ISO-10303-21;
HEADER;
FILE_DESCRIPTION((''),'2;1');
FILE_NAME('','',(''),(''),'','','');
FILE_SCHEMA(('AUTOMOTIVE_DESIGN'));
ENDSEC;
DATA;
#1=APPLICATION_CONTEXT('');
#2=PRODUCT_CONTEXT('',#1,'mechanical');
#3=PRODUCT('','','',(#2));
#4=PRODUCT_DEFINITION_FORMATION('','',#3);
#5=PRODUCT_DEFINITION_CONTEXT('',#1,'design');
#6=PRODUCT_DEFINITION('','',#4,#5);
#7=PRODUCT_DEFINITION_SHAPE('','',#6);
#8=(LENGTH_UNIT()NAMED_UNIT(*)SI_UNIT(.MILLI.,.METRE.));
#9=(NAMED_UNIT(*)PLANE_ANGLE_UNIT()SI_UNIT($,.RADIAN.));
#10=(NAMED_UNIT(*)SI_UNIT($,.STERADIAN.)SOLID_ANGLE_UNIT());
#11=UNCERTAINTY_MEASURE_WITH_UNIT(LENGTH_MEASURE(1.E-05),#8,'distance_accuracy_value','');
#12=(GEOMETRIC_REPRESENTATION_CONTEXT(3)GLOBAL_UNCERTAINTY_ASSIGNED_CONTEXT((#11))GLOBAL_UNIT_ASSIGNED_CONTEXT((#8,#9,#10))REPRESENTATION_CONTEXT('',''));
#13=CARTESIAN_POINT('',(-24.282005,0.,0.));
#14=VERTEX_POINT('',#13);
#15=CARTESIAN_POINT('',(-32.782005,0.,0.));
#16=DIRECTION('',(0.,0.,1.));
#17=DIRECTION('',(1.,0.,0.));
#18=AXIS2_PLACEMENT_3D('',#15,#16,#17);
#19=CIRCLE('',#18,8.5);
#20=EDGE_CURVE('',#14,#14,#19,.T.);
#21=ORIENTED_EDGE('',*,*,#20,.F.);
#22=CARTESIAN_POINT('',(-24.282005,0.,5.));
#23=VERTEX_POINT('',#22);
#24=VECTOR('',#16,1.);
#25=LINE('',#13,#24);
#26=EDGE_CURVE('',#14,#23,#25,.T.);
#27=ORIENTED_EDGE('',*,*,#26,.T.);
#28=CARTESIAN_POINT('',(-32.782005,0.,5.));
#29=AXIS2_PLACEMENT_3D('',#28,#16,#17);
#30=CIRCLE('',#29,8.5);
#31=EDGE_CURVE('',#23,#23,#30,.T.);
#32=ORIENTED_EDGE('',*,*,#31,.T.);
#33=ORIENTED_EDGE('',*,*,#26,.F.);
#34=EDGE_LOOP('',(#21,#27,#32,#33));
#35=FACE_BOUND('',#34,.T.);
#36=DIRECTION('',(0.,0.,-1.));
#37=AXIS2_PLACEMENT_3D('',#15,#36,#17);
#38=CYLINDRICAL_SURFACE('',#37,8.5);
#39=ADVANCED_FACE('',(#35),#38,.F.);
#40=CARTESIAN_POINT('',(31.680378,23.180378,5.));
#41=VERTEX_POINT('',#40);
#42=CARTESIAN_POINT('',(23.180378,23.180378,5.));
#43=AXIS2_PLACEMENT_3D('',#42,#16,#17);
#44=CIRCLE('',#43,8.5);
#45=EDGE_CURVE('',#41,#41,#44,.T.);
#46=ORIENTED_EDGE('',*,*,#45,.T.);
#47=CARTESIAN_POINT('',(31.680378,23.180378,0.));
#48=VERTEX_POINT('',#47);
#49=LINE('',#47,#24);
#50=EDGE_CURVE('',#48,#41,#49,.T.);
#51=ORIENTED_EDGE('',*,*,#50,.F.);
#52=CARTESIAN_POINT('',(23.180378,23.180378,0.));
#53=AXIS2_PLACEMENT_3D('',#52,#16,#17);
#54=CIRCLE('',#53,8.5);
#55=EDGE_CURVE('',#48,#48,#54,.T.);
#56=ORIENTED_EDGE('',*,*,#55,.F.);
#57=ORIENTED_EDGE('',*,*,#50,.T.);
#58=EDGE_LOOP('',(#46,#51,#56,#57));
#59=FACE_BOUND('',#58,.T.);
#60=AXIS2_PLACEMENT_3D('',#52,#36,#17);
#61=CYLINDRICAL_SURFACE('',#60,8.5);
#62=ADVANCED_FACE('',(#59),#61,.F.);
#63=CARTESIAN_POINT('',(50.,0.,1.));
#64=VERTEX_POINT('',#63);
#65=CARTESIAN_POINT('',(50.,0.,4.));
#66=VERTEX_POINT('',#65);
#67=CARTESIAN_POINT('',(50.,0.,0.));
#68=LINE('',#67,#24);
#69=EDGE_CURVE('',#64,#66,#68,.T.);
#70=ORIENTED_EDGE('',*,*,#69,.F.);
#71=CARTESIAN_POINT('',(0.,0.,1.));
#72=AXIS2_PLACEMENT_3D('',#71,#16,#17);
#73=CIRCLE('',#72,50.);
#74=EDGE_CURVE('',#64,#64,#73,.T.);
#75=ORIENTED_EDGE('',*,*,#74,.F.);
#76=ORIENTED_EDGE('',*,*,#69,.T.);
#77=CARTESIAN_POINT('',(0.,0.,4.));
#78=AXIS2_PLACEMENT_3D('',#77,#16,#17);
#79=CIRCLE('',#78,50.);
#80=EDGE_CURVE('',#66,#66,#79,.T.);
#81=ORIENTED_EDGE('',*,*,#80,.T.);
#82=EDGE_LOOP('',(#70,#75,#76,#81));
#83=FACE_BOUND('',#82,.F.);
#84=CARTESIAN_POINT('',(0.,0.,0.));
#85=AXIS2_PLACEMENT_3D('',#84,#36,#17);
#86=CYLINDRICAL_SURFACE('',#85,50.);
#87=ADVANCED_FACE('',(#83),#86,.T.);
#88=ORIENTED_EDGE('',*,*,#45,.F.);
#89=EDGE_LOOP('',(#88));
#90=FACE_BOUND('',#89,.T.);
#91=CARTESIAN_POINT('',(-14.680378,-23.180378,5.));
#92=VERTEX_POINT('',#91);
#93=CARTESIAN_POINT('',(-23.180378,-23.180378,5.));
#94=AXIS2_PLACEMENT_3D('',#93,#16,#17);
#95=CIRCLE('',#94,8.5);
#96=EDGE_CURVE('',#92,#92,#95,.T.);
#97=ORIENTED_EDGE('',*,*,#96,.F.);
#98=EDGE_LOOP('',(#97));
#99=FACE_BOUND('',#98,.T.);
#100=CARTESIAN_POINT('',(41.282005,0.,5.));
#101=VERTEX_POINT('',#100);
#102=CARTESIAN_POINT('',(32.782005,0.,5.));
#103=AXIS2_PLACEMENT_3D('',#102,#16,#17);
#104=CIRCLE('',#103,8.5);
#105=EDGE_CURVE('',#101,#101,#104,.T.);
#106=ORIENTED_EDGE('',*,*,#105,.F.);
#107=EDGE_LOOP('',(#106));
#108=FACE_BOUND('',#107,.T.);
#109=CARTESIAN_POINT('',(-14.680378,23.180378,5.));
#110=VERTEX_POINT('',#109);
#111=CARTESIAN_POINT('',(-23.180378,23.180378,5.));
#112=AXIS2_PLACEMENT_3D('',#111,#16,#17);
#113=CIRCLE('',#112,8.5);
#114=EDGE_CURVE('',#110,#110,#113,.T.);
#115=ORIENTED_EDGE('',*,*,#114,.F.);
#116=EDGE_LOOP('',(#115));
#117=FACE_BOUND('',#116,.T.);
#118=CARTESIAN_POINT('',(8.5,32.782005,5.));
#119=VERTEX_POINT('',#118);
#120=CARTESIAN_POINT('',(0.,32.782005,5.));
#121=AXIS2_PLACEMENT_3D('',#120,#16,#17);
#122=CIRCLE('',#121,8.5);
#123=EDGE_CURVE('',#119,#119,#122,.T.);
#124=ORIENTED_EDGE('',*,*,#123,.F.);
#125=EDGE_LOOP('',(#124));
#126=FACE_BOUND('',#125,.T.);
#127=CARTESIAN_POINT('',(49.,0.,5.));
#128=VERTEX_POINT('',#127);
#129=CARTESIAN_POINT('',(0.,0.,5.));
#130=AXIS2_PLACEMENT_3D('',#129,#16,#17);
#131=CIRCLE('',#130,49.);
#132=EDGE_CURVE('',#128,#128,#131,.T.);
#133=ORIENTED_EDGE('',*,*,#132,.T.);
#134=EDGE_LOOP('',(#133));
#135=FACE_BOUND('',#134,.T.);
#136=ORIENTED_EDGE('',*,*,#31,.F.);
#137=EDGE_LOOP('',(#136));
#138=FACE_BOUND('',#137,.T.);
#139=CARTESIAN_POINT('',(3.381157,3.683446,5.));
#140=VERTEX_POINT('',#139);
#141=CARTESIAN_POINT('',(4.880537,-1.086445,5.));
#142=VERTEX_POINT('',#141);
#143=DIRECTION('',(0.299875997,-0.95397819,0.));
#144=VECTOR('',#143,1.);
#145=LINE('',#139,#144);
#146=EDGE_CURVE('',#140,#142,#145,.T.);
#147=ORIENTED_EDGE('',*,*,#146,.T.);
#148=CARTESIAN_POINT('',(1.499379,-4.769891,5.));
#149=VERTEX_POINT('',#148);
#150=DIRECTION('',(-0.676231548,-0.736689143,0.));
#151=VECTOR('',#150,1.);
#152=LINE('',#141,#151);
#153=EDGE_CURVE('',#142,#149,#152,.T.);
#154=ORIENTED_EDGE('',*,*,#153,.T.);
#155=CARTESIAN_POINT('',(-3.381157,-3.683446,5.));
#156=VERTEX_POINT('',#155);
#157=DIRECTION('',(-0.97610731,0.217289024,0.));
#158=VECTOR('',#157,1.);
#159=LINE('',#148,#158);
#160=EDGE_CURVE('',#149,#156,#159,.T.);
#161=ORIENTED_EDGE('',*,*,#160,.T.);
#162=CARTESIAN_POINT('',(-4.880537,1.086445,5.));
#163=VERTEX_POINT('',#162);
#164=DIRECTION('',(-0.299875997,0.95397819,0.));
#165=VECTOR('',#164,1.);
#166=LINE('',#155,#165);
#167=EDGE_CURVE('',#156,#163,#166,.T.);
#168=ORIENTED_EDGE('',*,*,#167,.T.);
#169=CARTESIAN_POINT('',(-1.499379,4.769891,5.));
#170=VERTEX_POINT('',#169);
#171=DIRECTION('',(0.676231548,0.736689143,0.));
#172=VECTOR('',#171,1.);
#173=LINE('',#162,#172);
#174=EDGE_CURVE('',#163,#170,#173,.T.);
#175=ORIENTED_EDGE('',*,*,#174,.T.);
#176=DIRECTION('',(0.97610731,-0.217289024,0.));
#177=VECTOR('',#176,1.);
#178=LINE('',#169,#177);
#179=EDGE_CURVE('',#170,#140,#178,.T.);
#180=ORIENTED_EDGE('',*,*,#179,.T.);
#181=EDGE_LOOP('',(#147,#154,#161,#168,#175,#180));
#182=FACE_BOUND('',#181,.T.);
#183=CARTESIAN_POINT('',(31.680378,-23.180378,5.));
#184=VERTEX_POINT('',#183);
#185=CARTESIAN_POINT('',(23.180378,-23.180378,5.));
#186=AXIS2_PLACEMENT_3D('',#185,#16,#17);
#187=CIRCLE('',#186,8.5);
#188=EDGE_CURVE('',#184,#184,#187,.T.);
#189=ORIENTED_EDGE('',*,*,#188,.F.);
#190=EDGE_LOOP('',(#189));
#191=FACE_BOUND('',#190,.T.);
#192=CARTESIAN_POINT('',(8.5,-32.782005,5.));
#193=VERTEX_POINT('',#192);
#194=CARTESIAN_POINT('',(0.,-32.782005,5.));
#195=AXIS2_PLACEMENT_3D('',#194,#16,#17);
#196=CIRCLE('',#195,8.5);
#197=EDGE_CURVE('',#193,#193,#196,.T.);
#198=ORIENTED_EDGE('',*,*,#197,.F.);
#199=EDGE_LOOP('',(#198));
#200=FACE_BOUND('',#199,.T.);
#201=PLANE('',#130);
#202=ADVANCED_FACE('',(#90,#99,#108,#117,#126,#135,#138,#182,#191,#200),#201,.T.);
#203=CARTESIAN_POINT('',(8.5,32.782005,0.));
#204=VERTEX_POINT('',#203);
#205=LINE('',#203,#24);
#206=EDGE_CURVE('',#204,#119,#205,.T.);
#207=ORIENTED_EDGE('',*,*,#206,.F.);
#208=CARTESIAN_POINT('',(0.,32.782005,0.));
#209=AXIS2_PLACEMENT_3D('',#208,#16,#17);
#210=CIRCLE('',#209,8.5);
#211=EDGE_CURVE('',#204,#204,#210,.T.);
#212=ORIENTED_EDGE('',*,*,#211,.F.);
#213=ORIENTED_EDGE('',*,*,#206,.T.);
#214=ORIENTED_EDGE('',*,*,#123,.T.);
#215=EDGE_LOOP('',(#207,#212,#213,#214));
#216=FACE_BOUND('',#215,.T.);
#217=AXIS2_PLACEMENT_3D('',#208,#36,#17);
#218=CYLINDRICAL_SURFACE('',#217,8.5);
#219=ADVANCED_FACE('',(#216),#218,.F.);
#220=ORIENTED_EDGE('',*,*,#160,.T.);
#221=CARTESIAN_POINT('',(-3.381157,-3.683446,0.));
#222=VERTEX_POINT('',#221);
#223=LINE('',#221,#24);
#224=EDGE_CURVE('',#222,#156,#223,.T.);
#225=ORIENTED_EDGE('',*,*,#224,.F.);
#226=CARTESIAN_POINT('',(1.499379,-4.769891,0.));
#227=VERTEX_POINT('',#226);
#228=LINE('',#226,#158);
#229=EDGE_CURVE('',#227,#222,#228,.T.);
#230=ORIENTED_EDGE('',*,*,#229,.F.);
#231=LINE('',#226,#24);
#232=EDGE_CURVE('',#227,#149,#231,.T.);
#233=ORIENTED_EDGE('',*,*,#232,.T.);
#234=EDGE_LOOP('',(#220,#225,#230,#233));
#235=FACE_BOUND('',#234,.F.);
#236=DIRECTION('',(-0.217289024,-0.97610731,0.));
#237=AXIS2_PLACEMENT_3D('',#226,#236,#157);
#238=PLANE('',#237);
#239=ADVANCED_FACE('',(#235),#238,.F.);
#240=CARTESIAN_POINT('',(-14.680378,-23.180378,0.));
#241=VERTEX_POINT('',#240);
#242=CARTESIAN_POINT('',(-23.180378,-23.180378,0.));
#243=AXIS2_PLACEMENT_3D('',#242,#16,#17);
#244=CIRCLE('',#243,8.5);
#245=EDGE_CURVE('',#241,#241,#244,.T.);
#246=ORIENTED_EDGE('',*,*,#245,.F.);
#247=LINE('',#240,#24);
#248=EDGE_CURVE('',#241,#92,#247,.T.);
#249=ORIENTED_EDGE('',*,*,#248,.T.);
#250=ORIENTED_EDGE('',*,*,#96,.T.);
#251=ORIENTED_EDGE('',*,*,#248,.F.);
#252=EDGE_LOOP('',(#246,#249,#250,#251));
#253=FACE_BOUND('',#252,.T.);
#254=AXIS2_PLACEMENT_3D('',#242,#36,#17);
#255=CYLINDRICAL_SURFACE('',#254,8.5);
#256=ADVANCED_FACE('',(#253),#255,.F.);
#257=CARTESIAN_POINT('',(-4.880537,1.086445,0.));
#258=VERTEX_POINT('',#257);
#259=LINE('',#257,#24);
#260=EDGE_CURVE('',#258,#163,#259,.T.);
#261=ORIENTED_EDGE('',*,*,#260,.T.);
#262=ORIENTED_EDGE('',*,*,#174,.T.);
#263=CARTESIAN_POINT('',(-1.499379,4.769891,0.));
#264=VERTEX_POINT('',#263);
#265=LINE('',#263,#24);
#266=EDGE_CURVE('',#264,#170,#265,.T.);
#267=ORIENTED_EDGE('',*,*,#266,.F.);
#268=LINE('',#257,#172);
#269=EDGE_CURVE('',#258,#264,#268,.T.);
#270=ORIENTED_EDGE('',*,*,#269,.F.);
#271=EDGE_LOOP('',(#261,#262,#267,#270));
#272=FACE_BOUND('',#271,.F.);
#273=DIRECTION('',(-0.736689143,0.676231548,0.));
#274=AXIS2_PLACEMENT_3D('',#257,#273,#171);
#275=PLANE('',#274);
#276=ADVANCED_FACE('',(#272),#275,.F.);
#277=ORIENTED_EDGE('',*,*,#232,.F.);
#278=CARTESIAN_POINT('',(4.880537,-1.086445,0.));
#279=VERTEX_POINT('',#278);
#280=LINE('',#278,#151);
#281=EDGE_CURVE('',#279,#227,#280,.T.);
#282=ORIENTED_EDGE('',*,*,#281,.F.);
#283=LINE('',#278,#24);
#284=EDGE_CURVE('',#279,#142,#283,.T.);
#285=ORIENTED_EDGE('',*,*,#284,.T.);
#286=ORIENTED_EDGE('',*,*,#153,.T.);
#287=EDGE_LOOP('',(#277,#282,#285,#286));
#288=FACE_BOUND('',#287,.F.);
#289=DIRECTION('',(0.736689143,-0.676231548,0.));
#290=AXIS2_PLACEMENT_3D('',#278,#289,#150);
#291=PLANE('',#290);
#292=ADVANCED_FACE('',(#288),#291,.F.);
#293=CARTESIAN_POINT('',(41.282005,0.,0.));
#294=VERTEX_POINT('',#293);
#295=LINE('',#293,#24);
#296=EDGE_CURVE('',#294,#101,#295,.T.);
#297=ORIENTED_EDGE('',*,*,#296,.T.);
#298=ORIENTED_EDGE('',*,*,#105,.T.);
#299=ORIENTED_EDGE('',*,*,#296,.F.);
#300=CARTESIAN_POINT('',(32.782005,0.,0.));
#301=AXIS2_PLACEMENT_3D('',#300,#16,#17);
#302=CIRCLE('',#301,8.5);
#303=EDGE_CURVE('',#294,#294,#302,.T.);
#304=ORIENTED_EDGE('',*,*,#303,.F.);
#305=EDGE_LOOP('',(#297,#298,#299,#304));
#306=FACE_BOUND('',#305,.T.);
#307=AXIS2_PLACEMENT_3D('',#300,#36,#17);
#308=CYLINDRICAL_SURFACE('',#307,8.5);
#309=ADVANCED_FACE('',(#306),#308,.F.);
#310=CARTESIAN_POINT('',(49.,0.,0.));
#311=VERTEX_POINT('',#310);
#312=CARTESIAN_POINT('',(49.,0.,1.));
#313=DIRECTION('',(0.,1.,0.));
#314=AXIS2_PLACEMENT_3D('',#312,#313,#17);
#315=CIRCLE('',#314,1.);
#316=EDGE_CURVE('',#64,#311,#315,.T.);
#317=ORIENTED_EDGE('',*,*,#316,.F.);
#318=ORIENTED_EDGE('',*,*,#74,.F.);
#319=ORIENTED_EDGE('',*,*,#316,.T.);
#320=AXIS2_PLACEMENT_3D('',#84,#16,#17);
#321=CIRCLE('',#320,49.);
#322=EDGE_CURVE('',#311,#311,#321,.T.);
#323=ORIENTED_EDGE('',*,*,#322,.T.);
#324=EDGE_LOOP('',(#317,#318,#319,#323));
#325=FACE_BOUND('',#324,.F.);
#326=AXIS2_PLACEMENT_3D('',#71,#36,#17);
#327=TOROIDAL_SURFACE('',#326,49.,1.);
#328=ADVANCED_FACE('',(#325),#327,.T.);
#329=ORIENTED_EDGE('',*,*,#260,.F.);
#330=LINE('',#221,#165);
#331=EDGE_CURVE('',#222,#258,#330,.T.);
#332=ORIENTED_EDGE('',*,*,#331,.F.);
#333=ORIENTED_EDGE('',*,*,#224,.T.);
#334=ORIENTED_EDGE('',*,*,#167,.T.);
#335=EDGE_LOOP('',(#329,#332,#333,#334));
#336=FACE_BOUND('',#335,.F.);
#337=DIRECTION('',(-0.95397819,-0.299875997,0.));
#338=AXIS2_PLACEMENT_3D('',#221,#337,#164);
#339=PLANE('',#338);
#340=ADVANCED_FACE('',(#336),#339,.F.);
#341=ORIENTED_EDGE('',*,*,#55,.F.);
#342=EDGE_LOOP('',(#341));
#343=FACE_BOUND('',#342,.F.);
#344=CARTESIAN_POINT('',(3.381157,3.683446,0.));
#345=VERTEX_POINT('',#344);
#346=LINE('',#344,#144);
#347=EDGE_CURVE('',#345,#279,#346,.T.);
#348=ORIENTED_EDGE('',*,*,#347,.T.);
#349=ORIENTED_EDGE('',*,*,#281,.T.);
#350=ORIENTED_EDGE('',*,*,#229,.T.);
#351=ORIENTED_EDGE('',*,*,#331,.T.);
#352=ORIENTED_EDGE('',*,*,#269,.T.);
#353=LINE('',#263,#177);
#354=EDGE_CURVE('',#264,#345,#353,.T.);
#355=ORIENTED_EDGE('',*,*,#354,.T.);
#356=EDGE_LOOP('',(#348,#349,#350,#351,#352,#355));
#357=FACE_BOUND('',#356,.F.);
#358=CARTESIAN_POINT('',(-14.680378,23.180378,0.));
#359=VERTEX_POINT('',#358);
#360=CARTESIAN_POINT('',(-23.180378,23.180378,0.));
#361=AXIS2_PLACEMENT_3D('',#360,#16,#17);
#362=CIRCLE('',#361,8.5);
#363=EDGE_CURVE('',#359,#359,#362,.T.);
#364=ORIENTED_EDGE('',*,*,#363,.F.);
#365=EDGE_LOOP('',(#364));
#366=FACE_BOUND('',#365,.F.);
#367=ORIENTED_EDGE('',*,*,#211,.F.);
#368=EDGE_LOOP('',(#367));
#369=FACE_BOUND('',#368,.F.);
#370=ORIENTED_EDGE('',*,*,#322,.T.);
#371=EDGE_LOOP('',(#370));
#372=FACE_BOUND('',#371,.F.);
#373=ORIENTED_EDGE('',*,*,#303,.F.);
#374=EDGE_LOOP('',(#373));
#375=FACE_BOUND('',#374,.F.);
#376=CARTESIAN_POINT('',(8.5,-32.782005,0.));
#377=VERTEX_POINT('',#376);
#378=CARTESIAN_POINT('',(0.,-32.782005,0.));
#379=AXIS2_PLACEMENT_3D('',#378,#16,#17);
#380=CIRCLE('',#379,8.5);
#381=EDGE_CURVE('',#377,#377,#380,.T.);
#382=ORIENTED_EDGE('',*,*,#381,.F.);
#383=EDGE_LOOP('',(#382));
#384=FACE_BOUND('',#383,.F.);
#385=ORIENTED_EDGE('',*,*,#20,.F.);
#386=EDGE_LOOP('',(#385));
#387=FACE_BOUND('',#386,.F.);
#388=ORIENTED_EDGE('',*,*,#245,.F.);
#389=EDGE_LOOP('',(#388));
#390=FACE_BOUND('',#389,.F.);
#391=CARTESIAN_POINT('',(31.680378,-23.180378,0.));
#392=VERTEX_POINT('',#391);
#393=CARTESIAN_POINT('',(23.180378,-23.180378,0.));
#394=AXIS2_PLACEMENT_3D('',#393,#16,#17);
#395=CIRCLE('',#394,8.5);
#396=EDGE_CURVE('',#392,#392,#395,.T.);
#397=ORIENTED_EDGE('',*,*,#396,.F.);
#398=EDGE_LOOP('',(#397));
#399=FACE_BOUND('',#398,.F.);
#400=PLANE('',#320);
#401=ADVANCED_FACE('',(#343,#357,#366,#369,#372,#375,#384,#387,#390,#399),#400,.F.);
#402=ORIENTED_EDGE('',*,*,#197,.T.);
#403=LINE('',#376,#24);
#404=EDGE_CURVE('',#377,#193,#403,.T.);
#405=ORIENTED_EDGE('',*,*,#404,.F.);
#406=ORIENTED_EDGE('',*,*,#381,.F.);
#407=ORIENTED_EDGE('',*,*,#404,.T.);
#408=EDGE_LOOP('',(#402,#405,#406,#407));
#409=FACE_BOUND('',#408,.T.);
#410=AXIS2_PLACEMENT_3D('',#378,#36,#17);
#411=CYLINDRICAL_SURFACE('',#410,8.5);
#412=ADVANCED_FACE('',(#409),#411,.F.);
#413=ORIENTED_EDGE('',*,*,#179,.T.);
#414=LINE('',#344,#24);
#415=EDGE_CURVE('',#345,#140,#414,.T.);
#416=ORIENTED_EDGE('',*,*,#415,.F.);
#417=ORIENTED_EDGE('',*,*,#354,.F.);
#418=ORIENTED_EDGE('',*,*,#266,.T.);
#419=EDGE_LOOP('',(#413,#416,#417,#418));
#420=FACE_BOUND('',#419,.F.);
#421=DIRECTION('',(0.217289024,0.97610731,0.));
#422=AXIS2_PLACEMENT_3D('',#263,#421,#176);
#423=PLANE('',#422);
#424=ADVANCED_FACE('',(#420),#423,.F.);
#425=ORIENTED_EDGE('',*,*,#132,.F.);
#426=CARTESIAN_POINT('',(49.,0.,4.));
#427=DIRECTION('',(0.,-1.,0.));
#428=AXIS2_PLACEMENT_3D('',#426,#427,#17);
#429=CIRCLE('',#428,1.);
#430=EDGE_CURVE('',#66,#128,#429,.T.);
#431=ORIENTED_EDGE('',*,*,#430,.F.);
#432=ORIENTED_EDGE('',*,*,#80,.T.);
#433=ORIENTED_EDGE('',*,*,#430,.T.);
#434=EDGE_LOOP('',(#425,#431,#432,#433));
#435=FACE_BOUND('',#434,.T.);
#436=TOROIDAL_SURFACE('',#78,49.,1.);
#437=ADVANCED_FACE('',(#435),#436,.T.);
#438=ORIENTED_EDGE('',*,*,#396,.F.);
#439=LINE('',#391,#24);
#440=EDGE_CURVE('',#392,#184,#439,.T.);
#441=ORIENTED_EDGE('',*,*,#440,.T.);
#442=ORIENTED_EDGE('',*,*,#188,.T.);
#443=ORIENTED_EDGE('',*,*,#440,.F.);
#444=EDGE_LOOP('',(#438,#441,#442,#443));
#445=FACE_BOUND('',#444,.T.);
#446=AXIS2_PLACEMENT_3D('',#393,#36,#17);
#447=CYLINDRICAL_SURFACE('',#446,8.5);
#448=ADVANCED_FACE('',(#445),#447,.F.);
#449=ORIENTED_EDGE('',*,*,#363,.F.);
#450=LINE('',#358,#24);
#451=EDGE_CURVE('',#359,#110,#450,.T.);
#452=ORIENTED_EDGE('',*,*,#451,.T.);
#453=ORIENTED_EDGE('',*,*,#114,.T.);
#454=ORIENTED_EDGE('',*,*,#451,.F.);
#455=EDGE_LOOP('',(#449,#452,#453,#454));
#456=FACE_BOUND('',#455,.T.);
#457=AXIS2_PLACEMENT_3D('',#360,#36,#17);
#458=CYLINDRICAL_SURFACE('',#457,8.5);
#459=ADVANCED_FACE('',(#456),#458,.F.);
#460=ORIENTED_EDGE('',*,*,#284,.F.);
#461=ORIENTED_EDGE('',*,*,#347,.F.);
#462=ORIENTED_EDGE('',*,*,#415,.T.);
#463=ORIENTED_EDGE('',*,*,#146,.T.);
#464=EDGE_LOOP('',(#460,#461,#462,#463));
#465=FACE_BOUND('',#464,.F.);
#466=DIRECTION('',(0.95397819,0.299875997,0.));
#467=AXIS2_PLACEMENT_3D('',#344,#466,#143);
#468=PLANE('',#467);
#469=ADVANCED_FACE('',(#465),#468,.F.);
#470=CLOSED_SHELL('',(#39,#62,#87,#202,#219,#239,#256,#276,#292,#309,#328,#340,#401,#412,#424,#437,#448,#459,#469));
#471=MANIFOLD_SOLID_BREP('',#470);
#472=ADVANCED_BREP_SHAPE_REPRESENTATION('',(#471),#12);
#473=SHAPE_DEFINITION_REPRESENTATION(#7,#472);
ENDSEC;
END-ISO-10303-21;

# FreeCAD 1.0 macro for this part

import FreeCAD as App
import Part
import Sketcher
from FreeCAD import Vector
Q = App.Units.Quantity


def edges_at(feature, points):
    """Names of the edges that pass closest to the given points."""
    edges = feature.Shape.Edges
    near = lambda p: min(range(len(edges)), key=lambda i: edges[i].distToShape(Part.Vertex(*p))[0])
    return sorted({f"Edge{near(p) + 1}" for p in points})

doc = App.newDocument("Part")
body = doc.addObject("PartDesign::Body", "Body")

# Sketch on XY plane
sketch1 = doc.addObject("Sketcher::SketchObject", "Sketch")
body.addObject(sketch1)
sketch1.AttachmentSupport = (doc.XY_Plane, [""])
sketch1.MapMode = "FlatFace"
sketch1.addGeometry([
    Part.Circle(Vector(0, 0, 0), Vector(0, 0, 1), 50),  # 0
    Part.Circle(Vector(-23.2, -23.2, 0), Vector(0, 0, 1), 8.5),  # 1
    Part.Circle(Vector(0, -32.8, 0), Vector(0, 0, 1), 8.5),  # 2
    Part.Circle(Vector(23.2, -23.2, 0), Vector(0, 0, 1), 8.5),  # 3
    Part.Circle(Vector(-32.8, 0, 0), Vector(0, 0, 1), 8.5),  # 4
    Part.Circle(Vector(-23.2, 23.2, 0), Vector(0, 0, 1), 8.5),  # 5
    Part.LineSegment(Vector(-1.5, 4.8, 0), Vector(3.4, 3.7, 0)),  # 6
    Part.LineSegment(Vector(3.4, 3.7, 0), Vector(4.9, -1.1, 0)),  # 7
    Part.LineSegment(Vector(4.9, -1.1, 0), Vector(1.5, -4.8, 0)),  # 8
    Part.LineSegment(Vector(1.5, -4.8, 0), Vector(-3.4, -3.7, 0)),  # 9
    Part.LineSegment(Vector(-3.4, -3.7, 0), Vector(-4.9, 1.1, 0)),  # 10
    Part.LineSegment(Vector(-4.9, 1.1, 0), Vector(-1.5, 4.8, 0)),  # 11
    Part.Circle(Vector(32.8, 0, 0), Vector(0, 0, 1), 8.5),  # 12
    Part.Circle(Vector(0, 32.8, 0), Vector(0, 0, 1), 8.5),  # 13
    Part.Circle(Vector(23.2, 23.2, 0), Vector(0, 0, 1), 8.5),  # 14
], False)
sketch1.addConstraint([
    Sketcher.Constraint("Coincident", 6, 2, 7, 1),
    Sketcher.Constraint("Coincident", 7, 2, 8, 1),
    Sketcher.Constraint("Coincident", 8, 2, 9, 1),
    Sketcher.Constraint("Coincident", 9, 2, 10, 1),
    Sketcher.Constraint("Coincident", 10, 2, 11, 1),
    Sketcher.Constraint("Coincident", 11, 2, 6, 1),
    Sketcher.Constraint("Coincident", 0, 3, -1, 1),
    Sketcher.Constraint("Equal", 1, 2),
    Sketcher.Constraint("Equal", 2, 3),
    Sketcher.Constraint("Equal", 3, 4),
    Sketcher.Constraint("Equal", 4, 5),
    Sketcher.Constraint("Equal", 5, 12),
    Sketcher.Constraint("Equal", 12, 13),
    Sketcher.Constraint("Equal", 13, 14),
    Sketcher.Constraint("Symmetric", 3, 3, 5, 3, -1, 1),
    Sketcher.Constraint("Symmetric", 4, 3, 12, 3, -1, 1),
    Sketcher.Constraint("Symmetric", 2, 3, 13, 3, -1, 1),
    Sketcher.Constraint("Symmetric", 1, 3, 14, 3, -1, 1),
    Sketcher.Constraint("Symmetric", 6, 2, 9, 2, -1, 1),
    Sketcher.Constraint("Symmetric", 7, 2, 10, 2, -1, 1),
    Sketcher.Constraint("Symmetric", 8, 2, 11, 2, -1, 1),
    Sketcher.Constraint("Symmetric", 1, 3, 3, 3, -2),
    Sketcher.Constraint("PointOnObject", 2, 3, -2),
    Sketcher.Constraint("PointOnObject", 4, 3, -1),
    Sketcher.Constraint("Equal", 6, 7),
    Sketcher.Constraint("Equal", 7, 8),
    Sketcher.Constraint("Diameter", 0, Q("100 mm")),
    Sketcher.Constraint("Diameter", 1, Q("17 mm")),
    Sketcher.Constraint("Distance", 6, Q("4.999999 mm")),
    Sketcher.Constraint("DistanceX", 8, 2, 3, 3, Q("21.680999 mm")),
    Sketcher.Constraint("DistanceY", 9, 2, 7, 2, Q("2.597001 mm")),
    Sketcher.Constraint("DistanceX", 1, 3, -1, 1, Q("23.180378 mm")),
    Sketcher.Constraint("DistanceY", 1, 3, -1, 1, Q("23.180378 mm")),
    Sketcher.Constraint("DistanceY", 8, 2, -1, 1, Q("4.769891 mm")),
    Sketcher.Constraint("DistanceY", 6, 2, 13, 3, Q("29.098559 mm")),
    Sketcher.Constraint("DistanceX", 4, 3, -1, 1, Q("32.782005 mm")),
])
pad1 = doc.addObject("PartDesign::Pad", "Pad")
body.addObject(pad1)
pad1.Profile = sketch1
pad1.Length = 5
doc.recompute()

fillet = doc.addObject("PartDesign::Fillet", "Fillet")
body.addObject(fillet)
fillet.Base = (pad1, edges_at(pad1, [(-50, 0, 5), (-50, 0, 0)]))
fillet.Radius = 1

doc.recompute()
